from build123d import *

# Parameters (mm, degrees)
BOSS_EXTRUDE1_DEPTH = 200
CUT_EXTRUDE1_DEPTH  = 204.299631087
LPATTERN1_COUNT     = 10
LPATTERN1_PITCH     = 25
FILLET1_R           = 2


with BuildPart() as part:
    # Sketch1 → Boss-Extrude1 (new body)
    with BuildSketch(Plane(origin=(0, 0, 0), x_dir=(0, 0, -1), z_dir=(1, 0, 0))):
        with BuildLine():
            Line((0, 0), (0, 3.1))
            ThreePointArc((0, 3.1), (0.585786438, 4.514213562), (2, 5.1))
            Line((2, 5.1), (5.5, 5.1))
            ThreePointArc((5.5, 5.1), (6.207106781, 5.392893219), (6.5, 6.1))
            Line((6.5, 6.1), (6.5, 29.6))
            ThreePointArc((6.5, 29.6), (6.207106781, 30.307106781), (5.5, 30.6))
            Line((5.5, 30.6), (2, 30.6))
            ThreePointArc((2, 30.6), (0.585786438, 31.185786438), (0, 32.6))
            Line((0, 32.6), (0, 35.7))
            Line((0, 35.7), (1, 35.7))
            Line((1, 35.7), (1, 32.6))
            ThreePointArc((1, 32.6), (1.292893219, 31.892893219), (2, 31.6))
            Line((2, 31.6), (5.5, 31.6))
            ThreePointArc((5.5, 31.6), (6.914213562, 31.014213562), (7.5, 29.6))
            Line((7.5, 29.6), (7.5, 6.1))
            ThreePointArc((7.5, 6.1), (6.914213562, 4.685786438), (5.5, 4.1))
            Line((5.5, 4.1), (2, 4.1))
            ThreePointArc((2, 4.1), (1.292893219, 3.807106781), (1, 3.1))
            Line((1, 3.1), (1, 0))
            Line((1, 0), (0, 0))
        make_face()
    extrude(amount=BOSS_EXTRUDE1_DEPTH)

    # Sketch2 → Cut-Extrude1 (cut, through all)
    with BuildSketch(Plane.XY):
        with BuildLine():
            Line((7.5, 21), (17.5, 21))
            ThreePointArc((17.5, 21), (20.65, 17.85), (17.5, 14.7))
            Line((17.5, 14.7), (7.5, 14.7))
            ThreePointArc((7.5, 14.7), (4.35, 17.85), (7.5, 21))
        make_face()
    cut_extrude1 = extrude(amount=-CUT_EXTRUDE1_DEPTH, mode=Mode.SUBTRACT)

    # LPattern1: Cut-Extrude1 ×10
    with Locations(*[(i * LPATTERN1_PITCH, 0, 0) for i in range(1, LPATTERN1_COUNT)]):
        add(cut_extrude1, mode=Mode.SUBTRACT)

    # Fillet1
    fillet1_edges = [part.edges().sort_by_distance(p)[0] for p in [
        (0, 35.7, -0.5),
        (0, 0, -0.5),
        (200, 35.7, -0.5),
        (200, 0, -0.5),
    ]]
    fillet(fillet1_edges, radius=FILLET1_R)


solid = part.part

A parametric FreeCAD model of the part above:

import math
import FreeCAD as App
import Part
import Sketcher

V = App.Vector


def edges_at(feature, points):
    """Names of the edges that pass closest to the given points."""
    edges = feature.Shape.Edges
    near = lambda p: min(range(len(edges)), key=lambda i: edges[i].distToShape(Part.Vertex(*p))[0])
    return sorted({f"Edge{near(p) + 1}" for p in points})

doc = App.newDocument("Part")
body = doc.addObject("PartDesign::Body", "Body")

sketch1 = body.newObject("Sketcher::SketchObject", "Sketch")
sketch1.AttachmentSupport = (doc.getObject("YZ_Plane"), [""])
sketch1.MapMode = "FlatFace"
sketch1.addGeometry([
    Part.LineSegment(V(3.1, 0, 0), V(0, 0, 0)),
    Part.LineSegment(V(0, 0, 0), V(0, -1, 0)),
    Part.LineSegment(V(0, -1, 0), V(3.1, -1, 0)),
    Part.ArcOfCircle(Part.Circle(V(3.1, -2, 0), V(0, 0, 1), 1), math.radians(0), math.radians(90)),
    Part.LineSegment(V(4.1, -2, 0), V(4.1, -5.5, 0)),
    Part.ArcOfCircle(Part.Circle(V(6.1, -5.5, 0), V(0, 0, 1), 2), math.radians(-180), math.radians(-90)),
    Part.LineSegment(V(6.1, -7.5, 0), V(29.6, -7.5, 0)),
    Part.ArcOfCircle(Part.Circle(V(29.6, -5.5, 0), V(0, 0, 1), 2), math.radians(-90), math.radians(0)),
    Part.LineSegment(V(31.6, -5.5, 0), V(31.6, -2, 0)),
    Part.ArcOfCircle(Part.Circle(V(32.6, -2, 0), V(0, 0, 1), 1), math.radians(90), math.radians(180)),
    Part.LineSegment(V(32.6, -1, 0), V(35.7, -1, 0)),
    Part.LineSegment(V(35.7, -1, 0), V(35.7, 0, 0)),
    Part.LineSegment(V(35.7, 0, 0), V(32.6, 0, 0)),
    Part.ArcOfCircle(Part.Circle(V(32.6, -2, 0), V(0, 0, 1), 2), math.radians(90), math.radians(180)),
    Part.LineSegment(V(30.6, -2, 0), V(30.6, -5.5, 0)),
    Part.ArcOfCircle(Part.Circle(V(29.6, -5.5, 0), V(0, 0, 1), 1), math.radians(-90), math.radians(0)),
    Part.LineSegment(V(29.6, -6.5, 0), V(6.1, -6.5, 0)),
    Part.ArcOfCircle(Part.Circle(V(6.1, -5.5, 0), V(0, 0, 1), 1), math.radians(-180), math.radians(-90)),
    Part.LineSegment(V(5.1, -5.5, 0), V(5.1, -2, 0)),
    Part.ArcOfCircle(Part.Circle(V(3.1, -2, 0), V(0, 0, 1), 2), math.radians(0), math.radians(90)),
], False)
sketch1.addConstraint([
    Sketcher.Constraint("Coincident", 0, 2, 1, 1),
    Sketcher.Constraint("Coincident", 1, 2, 2, 1),
    Sketcher.Constraint("Tangent", 2, 2, 3, 2),
    Sketcher.Constraint("Tangent", 3, 1, 4, 1),
    Sketcher.Constraint("Tangent", 4, 2, 5, 1),
    Sketcher.Constraint("Tangent", 5, 2, 6, 1),
    Sketcher.Constraint("Tangent", 6, 2, 7, 1),
    Sketcher.Constraint("Tangent", 7, 2, 8, 1),
    Sketcher.Constraint("Tangent", 8, 2, 9, 2),
    Sketcher.Constraint("Tangent", 9, 1, 10, 1),
    Sketcher.Constraint("Coincident", 10, 2, 11, 1),
    Sketcher.Constraint("Coincident", 11, 2, 12, 1),
    Sketcher.Constraint("Tangent", 12, 2, 13, 1),
    Sketcher.Constraint("Tangent", 13, 2, 14, 1),
    Sketcher.Constraint("Tangent", 14, 2, 15, 2),
    Sketcher.Constraint("Tangent", 15, 1, 16, 1),
    Sketcher.Constraint("Tangent", 16, 2, 17, 2),
    Sketcher.Constraint("Tangent", 17, 1, 18, 1),
    Sketcher.Constraint("Tangent", 18, 2, 19, 1),
    Sketcher.Constraint("Tangent", 19, 2, 0, 1),
    Sketcher.Constraint("Horizontal", 0),
    Sketcher.Constraint("Vertical", 1),
    Sketcher.Constraint("Horizontal", 2),
    Sketcher.Constraint("Vertical", 4),
    Sketcher.Constraint("Horizontal", 6),
    Sketcher.Constraint("Vertical", 8),
    Sketcher.Constraint("Horizontal", 10),
    Sketcher.Constraint("Vertical", 11),
    Sketcher.Constraint("Horizontal", 12),
    Sketcher.Constraint("Vertical", 14),
    Sketcher.Constraint("Horizontal", 16),
    Sketcher.Constraint("Vertical", 18),
    Sketcher.Constraint("Coincident", 0, 2, -1, 1),
    Sketcher.Constraint("Coincident", 13, 3, 9, 3),
    Sketcher.Constraint("Coincident", 15, 3, 7, 3),
    Sketcher.Constraint("Coincident", 17, 3, 5, 3),
    Sketcher.Constraint("Coincident", 19, 3, 3, 3),
    Sketcher.Constraint("Equal", 5, 7),
    Sketcher.Constraint("Equal", 3, 9),
    Sketcher.Constraint("Equal", 7, 13),
    Sketcher.Constraint("PointOnObject", 11, 2, -1),
    Sketcher.Constraint("Equal", 2, 10),
    Sketcher.Constraint("Radius", 3, 1.0),
    Sketcher.Constraint("Radius", 5, 2.0),
    Sketcher.Constraint("DistanceX", 0, 2, 0, 1, 3.1),
    Sketcher.Constraint("DistanceX", 6, 1, 6, 2, 23.5),
    Sketcher.Constraint("DistanceY", 4, 2, 4, 1, 3.5),
])
pad1 = body.newObject("PartDesign::Pad", "Pad")
pad1.Profile = sketch1
pad1.Length = 200

sketch2 = body.newObject("Sketcher::SketchObject", "Sketch001")
sketch2.AttachmentSupport = (doc.getObject("XY_Plane"), [""])
sketch2.MapMode = "FlatFace"
sketch2.addGeometry([
    Part.LineSegment(V(17.5, 21, 0), V(7.5, 21, 0)),
    Part.ArcOfCircle(Part.Circle(V(7.5, 17.9, 0), V(0, 0, 1), 3.1), math.radians(90), math.radians(270)),
    Part.LineSegment(V(7.5, 14.7, 0), V(17.5, 14.7, 0)),
    Part.ArcOfCircle(Part.Circle(V(17.5, 17.9, 0), V(0, 0, 1), 3.1), math.radians(-90), math.radians(90)),
], False)
sketch2.addConstraint([
    Sketcher.Constraint("Tangent", 0, 2, 1, 1),
    Sketcher.Constraint("Tangent", 1, 2, 2, 1),
    Sketcher.Constraint("Tangent", 2, 2, 3, 1),
    Sketcher.Constraint("Tangent", 3, 2, 0, 1),
    Sketcher.Constraint("Horizontal", 0),
    Sketcher.Constraint("Horizontal", 2),
    Sketcher.Constraint("DistanceX", 0, 2, 0, 1, 10.0),
    Sketcher.Constraint("Radius", 1, 3.15),
    Sketcher.Constraint("DistanceY", -1, 1, 0, 2, 21.0),
    Sketcher.Constraint("DistanceX", -1, 1, 1, 3, 7.5),
])
pocket1 = body.newObject("PartDesign::Pocket", "Pocket")
pocket1.Profile = sketch2
pocket1.Type = "ThroughAll"
doc.recompute()

linearpattern = body.newObject("PartDesign::LinearPattern", "LinearPattern")
linearpattern.Originals = [pocket1]
linearpattern.Direction = (doc.getObject("X_Axis"), [""])
linearpattern.Mode = "offset"
linearpattern.Offset = 25
linearpattern.Occurrences = 10
body.Tip = linearpattern
doc.recompute()

fillet = body.newObject("PartDesign::Fillet", "Fillet")
fillet.Base = (linearpattern, edges_at(linearpattern, [
    (0, 35.7, -0.5),
    (0, 0, -0.5),
    (200, 35.7, -0.5),
    (200, 0, -0.5),
]))
fillet.Radius = 2

doc.recompute()
